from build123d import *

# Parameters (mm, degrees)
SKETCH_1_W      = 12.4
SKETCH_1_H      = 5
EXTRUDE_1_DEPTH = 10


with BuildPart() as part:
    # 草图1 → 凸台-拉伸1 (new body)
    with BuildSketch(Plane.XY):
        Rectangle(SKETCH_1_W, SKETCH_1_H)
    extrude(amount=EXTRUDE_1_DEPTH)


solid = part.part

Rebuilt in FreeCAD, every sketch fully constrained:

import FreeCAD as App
import Part
import Sketcher
from FreeCAD import Vector
Q = App.Units.Quantity


def add_polygon(sketch, points):
    """Adds a closed chain of lines whose ends are joined by coincident constraints."""
    first, n = sketch.GeometryCount, len(points)
    for a, b in zip(points, points[1:] + points[:1]):
        sketch.addGeometry(Part.LineSegment(App.Vector(*a, 0), App.Vector(*b, 0)), False)
    for i in range(n):
        sketch.addConstraint(Sketcher.Constraint("Coincident", first + i, 2, first + (i + 1) % n, 1))

doc = App.newDocument("Part")
body = doc.addObject("PartDesign::Body", "Body")

# Sketch on XY plane
sketch1 = doc.addObject("Sketcher::SketchObject", "Sketch")
body.addObject(sketch1)
sketch1.AttachmentSupport = (doc.XY_Plane, [""])
sketch1.MapMode = "FlatFace"
add_polygon(sketch1, [(-6, 2), (-6, -2), (6, -2), (6, 2)])  # lines 0-3
sketch1.addConstraint([
    Sketcher.Constraint("Vertical", 0),
    Sketcher.Constraint("Horizontal", 1),
    Sketcher.Constraint("Vertical", 2),
    Sketcher.Constraint("Horizontal", 3),
    Sketcher.Constraint("Symmetric", 0, 2, 2, 2, -1, 1),
    Sketcher.Constraint("DistanceY", 0, 2, 0, 1, Q("5 mm")),
    Sketcher.Constraint("DistanceX", 1, 1, 1, 2, Q("12.4 mm")),
])
pad1 = doc.addObject("PartDesign::Pad", "Pad")
body.addObject(pad1)
pad1.Profile = sketch1
pad1.Length = 10

doc.recompute()
